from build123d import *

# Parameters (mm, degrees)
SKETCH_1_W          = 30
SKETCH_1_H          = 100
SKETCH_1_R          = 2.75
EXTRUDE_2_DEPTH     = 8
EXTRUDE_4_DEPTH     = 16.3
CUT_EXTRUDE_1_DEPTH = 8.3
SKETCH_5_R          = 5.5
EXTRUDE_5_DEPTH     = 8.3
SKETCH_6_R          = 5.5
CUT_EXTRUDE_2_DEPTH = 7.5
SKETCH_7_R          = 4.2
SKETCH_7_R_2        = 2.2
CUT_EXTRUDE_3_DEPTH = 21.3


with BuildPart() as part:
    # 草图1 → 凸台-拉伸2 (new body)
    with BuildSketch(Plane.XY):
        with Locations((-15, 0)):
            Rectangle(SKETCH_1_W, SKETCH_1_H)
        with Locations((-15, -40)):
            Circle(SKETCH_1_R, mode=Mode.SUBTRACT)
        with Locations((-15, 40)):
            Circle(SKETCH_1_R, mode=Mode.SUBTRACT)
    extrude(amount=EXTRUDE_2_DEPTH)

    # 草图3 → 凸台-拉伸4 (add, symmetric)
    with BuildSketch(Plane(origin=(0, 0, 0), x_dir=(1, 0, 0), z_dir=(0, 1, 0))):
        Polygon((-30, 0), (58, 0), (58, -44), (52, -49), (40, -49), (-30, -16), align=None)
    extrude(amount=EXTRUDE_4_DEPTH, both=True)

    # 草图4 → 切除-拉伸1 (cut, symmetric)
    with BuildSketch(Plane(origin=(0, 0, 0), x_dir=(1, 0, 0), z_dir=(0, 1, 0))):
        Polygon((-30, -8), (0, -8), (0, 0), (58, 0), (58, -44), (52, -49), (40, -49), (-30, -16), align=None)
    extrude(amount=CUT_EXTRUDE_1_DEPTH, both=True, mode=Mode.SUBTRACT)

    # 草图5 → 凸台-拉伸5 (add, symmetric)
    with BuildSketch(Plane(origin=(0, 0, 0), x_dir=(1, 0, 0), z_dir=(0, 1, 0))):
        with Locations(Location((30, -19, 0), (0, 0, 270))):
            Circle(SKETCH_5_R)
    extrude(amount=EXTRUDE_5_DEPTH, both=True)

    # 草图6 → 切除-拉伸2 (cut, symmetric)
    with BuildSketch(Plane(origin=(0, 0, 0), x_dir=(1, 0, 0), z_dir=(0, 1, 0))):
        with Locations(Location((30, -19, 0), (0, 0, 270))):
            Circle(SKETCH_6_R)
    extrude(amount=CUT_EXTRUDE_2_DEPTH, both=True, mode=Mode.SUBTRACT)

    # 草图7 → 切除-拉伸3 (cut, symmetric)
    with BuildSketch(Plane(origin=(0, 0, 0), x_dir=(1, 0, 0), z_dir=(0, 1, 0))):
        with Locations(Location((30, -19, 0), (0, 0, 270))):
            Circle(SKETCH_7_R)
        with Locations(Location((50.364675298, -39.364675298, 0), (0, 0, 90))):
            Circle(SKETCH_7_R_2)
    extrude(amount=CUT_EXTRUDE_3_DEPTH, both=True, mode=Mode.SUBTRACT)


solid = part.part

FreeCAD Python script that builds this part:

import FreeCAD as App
import Part
import Sketcher

V = App.Vector
Q = App.Units.Quantity

doc = App.newDocument("Part")
body = doc.addObject("PartDesign::Body", "Body")

sketch1 = body.newObject("Sketcher::SketchObject", "Sketch")
sketch1.AttachmentSupport = (doc.getObject("XY_Plane"), [""])
sketch1.MapMode = "FlatFace"
sketch1.addGeometry(Part.LineSegment(V(-30, 50, 0), V(-30, -50, 0)), False)
sketch1.addGeometry(Part.LineSegment(V(-30, -50, 0), V(0, -50, 0)), False)
sketch1.addGeometry(Part.LineSegment(V(0, -50, 0), V(0, 50, 0)), False)
sketch1.addGeometry(Part.LineSegment(V(0, 50, 0), V(-30, 50, 0)), False)
sketch1.addGeometry(Part.Circle(V(-15, -40, 0), V(0, 0, 1), 2.8), False)
sketch1.addGeometry(Part.Circle(V(-15, 40, 0), V(0, 0, 1), 2.8), False)
sketch1.addConstraint(Sketcher.Constraint("Coincident", 0, 2, 1, 1))
sketch1.addConstraint(Sketcher.Constraint("Coincident", 1, 2, 2, 1))
sketch1.addConstraint(Sketcher.Constraint("Coincident", 2, 2, 3, 1))
sketch1.addConstraint(Sketcher.Constraint("Coincident", 3, 2, 0, 1))
sketch1.addConstraint(Sketcher.Constraint("Vertical", 0))
sketch1.addConstraint(Sketcher.Constraint("Horizontal", 1))
sketch1.addConstraint(Sketcher.Constraint("Vertical", 2))
sketch1.addConstraint(Sketcher.Constraint("Horizontal", 3))
sketch1.addConstraint(Sketcher.Constraint("Equal", 4, 5))
sketch1.addConstraint(Sketcher.Constraint("Symmetric", 1, 2, 2, 2, -1, 1))
sketch1.addConstraint(Sketcher.Constraint("Symmetric", 4, 3, 5, 3, -1))
sketch1.addConstraint(Sketcher.Constraint("Diameter", 4, Q("5.5 mm")))
sketch1.addConstraint(Sketcher.Constraint("DistanceX", 1, 1, 1, 2, Q("30 mm")))
sketch1.addConstraint(Sketcher.Constraint("DistanceY", 0, 2, 0, 1, Q("100 mm")))
sketch1.addConstraint(Sketcher.Constraint("DistanceX", 4, 3, -1, 1, Q("15 mm")))
sketch1.addConstraint(Sketcher.Constraint("DistanceY", 4, 3, -1, 1, Q("40 mm")))
pad1 = body.newObject("PartDesign::Pad", "Pad")
pad1.Profile = sketch1
pad1.Length = 8

sketch2 = body.newObject("Sketcher::SketchObject", "Sketch001")
sketch2.AttachmentSupport = (doc.getObject("XZ_Plane"), [""])
sketch2.MapMode = "FlatFace"
sketch2.addGeometry(Part.LineSegment(V(58, 0, 0), V(-30, 0, 0)), False)
sketch2.addGeometry(Part.LineSegment(V(-30, 0, 0), V(-30, 16, 0)), False)
sketch2.addGeometry(Part.LineSegment(V(-30, 16, 0), V(40, 49, 0)), False)
sketch2.addGeometry(Part.LineSegment(V(40, 49, 0), V(52, 49, 0)), False)
sketch2.addGeometry(Part.LineSegment(V(52, 49, 0), V(58, 44, 0)), False)
sketch2.addGeometry(Part.LineSegment(V(58, 44, 0), V(58, 0, 0)), False)
sketch2.addConstraint(Sketcher.Constraint("Coincident", 0, 2, 1, 1))
sketch2.addConstraint(Sketcher.Constraint("Coincident", 1, 2, 2, 1))
sketch2.addConstraint(Sketcher.Constraint("Coincident", 2, 2, 3, 1))
sketch2.addConstraint(Sketcher.Constraint("Coincident", 3, 2, 4, 1))
sketch2.addConstraint(Sketcher.Constraint("Coincident", 4, 2, 5, 1))
sketch2.addConstraint(Sketcher.Constraint("Coincident", 5, 2, 0, 1))
sketch2.addConstraint(Sketcher.Constraint("Horizontal", 0))
sketch2.addConstraint(Sketcher.Constraint("Vertical", 1))
sketch2.addConstraint(Sketcher.Constraint("Horizontal", 3))
sketch2.addConstraint(Sketcher.Constraint("Vertical", 5))
sketch2.addConstraint(Sketcher.Constraint("PointOnObject", 0, 2, -1))
sketch2.addConstraint(Sketcher.Constraint("DistanceX", 0, 2, 0, 1, Q("88 mm")))
sketch2.addConstraint(Sketcher.Constraint("DistanceX", 3, 1, 3, 2, Q("12 mm")))
sketch2.addConstraint(Sketcher.Constraint("DistanceY", 1, 1, 1, 2, Q("16 mm")))
sketch2.addConstraint(Sketcher.Constraint("DistanceY", 5, 2, 5, 1, Q("44 mm")))
sketch2.addConstraint(Sketcher.Constraint("DistanceX", 0, 2, -1, 1, Q("30 mm")))
sketch2.addConstraint(Sketcher.Constraint("DistanceX", -1, 1, 2, 2, Q("40 mm")))
sketch2.addConstraint(Sketcher.Constraint("DistanceY", -1, 1, 2, 2, Q("49 mm")))
pad2 = body.newObject("PartDesign::Pad", "Pad001")
pad2.Profile = sketch2
pad2.Length = 32.6
pad2.Midplane = True

sketch3 = body.newObject("Sketcher::SketchObject", "Sketch002")
sketch3.AttachmentSupport = (doc.getObject("XZ_Plane"), [""])
sketch3.MapMode = "FlatFace"
sketch3.addGeometry(Part.LineSegment(V(0, 8, 0), V(-30, 8, 0)), False)
sketch3.addGeometry(Part.LineSegment(V(-30, 8, 0), V(-30, 16, 0)), False)
sketch3.addGeometry(Part.LineSegment(V(-30, 16, 0), V(40, 49, 0)), False)
sketch3.addGeometry(Part.LineSegment(V(40, 49, 0), V(52, 49, 0)), False)
sketch3.addGeometry(Part.LineSegment(V(52, 49, 0), V(58, 44, 0)), False)
sketch3.addGeometry(Part.LineSegment(V(58, 44, 0), V(58, 0, 0)), False)
sketch3.addGeometry(Part.LineSegment(V(58, 0, 0), V(0, 0, 0)), False)
sketch3.addGeometry(Part.LineSegment(V(0, 0, 0), V(0, 8, 0)), False)
sketch3.addConstraint(Sketcher.Constraint("Coincident", 0, 2, 1, 1))
sketch3.addConstraint(Sketcher.Constraint("Coincident", 1, 2, 2, 1))
sketch3.addConstraint(Sketcher.Constraint("Coincident", 2, 2, 3, 1))
sketch3.addConstraint(Sketcher.Constraint("Coincident", 3, 2, 4, 1))
sketch3.addConstraint(Sketcher.Constraint("Coincident", 4, 2, 5, 1))
sketch3.addConstraint(Sketcher.Constraint("Coincident", 5, 2, 6, 1))
sketch3.addConstraint(Sketcher.Constraint("Coincident", 6, 2, 7, 1))
sketch3.addConstraint(Sketcher.Constraint("Coincident", 7, 2, 0, 1))
sketch3.addConstraint(Sketcher.Constraint("Horizontal", 0))
sketch3.addConstraint(Sketcher.Constraint("Vertical", 1))
sketch3.addConstraint(Sketcher.Constraint("Horizontal", 3))
sketch3.addConstraint(Sketcher.Constraint("Vertical", 5))
sketch3.addConstraint(Sketcher.Constraint("Horizontal", 6))
sketch3.addConstraint(Sketcher.Constraint("Vertical", 7))
sketch3.addConstraint(Sketcher.Constraint("Coincident", 6, 2, -1, 1))
sketch3.addConstraint(Sketcher.Constraint("Equal", 1, 7))
sketch3.addConstraint(Sketcher.Constraint("DistanceX", 0, 2, 0, 1, Q("30 mm")))
sketch3.addConstraint(Sketcher.Constraint("DistanceX", 3, 1, 3, 2, Q("12 mm")))
sketch3.addConstraint(Sketcher.Constraint("DistanceX", 6, 2, 6, 1, Q("58 mm")))
sketch3.addConstraint(Sketcher.Constraint("DistanceY", 1, 1, 1, 2, Q("8 mm")))
sketch3.addConstraint(Sketcher.Constraint("DistanceY", 5, 2, 5, 1, Q("44 mm")))
sketch3.addConstraint(Sketcher.Constraint("DistanceX", -1, 1, 2, 2, Q("40 mm")))
sketch3.addConstraint(Sketcher.Constraint("DistanceY", -1, 1, 2, 2, Q("49 mm")))
pocket1 = body.newObject("PartDesign::Pocket", "Pocket")
pocket1.Profile = sketch3
pocket1.Length = 16.6
pocket1.Midplane = True

sketch4 = body.newObject("Sketcher::SketchObject", "Sketch003")
sketch4.AttachmentSupport = (doc.getObject("XZ_Plane"), [""])
sketch4.MapMode = "FlatFace"
sketch4.addGeometry(Part.Circle(V(30, 19, 0), V(0, 0, 1), 6), False)
sketch4.addConstraint(Sketcher.Constraint("Diameter", 0, Q("11 mm")))
sketch4.addConstraint(Sketcher.Constraint("DistanceX", -1, 1, 0, 3, Q("30 mm")))
sketch4.addConstraint(Sketcher.Constraint("DistanceY", -1, 1, 0, 3, Q("19 mm")))
pad3 = body.newObject("PartDesign::Pad", "Pad002")
pad3.Profile = sketch4
pad3.Length = 16.6
pad3.Midplane = True

sketch5 = body.newObject("Sketcher::SketchObject", "Sketch004")
sketch5.AttachmentSupport = (doc.getObject("XZ_Plane"), [""])
sketch5.MapMode = "FlatFace"
sketch5.addGeometry(Part.Circle(V(30, 19, 0), V(0, 0, 1), 6), False)
sketch5.addConstraint(Sketcher.Constraint("Diameter", 0, Q("11 mm")))
sketch5.addConstraint(Sketcher.Constraint("DistanceX", -1, 1, 0, 3, Q("30 mm")))
sketch5.addConstraint(Sketcher.Constraint("DistanceY", -1, 1, 0, 3, Q("19 mm")))
pocket2 = body.newObject("PartDesign::Pocket", "Pocket001")
pocket2.Profile = sketch5
pocket2.Length = 15
pocket2.Midplane = True

sketch6 = body.newObject("Sketcher::SketchObject", "Sketch005")
sketch6.AttachmentSupport = (doc.getObject("XZ_Plane"), [""])
sketch6.MapMode = "FlatFace"
sketch6.addGeometry(Part.Circle(V(30, 19, 0), V(0, 0, 1), 4.2), False)
sketch6.addGeometry(Part.Circle(V(50.4, 39.4, 0), V(0, 0, 1), 2.2), False)
sketch6.addConstraint(Sketcher.Constraint("Diameter", 0, Q("8.4 mm")))
sketch6.addConstraint(Sketcher.Constraint("Diameter", 1, Q("4.4 mm")))
sketch6.addConstraint(Sketcher.Constraint("DistanceX", -1, 1, 0, 3, Q("30 mm")))
sketch6.addConstraint(Sketcher.Constraint("DistanceY", -1, 1, 0, 3, Q("19 mm")))
sketch6.addConstraint(Sketcher.Constraint("DistanceX", -1, 1, 1, 3, Q("50.364675 mm")))
sketch6.addConstraint(Sketcher.Constraint("DistanceY", -1, 1, 1, 3, Q("39.364675 mm")))
pocket3 = body.newObject("PartDesign::Pocket", "Pocket002")
pocket3.Profile = sketch6
pocket3.Length = 42.6
pocket3.Midplane = True

doc.recompute()
